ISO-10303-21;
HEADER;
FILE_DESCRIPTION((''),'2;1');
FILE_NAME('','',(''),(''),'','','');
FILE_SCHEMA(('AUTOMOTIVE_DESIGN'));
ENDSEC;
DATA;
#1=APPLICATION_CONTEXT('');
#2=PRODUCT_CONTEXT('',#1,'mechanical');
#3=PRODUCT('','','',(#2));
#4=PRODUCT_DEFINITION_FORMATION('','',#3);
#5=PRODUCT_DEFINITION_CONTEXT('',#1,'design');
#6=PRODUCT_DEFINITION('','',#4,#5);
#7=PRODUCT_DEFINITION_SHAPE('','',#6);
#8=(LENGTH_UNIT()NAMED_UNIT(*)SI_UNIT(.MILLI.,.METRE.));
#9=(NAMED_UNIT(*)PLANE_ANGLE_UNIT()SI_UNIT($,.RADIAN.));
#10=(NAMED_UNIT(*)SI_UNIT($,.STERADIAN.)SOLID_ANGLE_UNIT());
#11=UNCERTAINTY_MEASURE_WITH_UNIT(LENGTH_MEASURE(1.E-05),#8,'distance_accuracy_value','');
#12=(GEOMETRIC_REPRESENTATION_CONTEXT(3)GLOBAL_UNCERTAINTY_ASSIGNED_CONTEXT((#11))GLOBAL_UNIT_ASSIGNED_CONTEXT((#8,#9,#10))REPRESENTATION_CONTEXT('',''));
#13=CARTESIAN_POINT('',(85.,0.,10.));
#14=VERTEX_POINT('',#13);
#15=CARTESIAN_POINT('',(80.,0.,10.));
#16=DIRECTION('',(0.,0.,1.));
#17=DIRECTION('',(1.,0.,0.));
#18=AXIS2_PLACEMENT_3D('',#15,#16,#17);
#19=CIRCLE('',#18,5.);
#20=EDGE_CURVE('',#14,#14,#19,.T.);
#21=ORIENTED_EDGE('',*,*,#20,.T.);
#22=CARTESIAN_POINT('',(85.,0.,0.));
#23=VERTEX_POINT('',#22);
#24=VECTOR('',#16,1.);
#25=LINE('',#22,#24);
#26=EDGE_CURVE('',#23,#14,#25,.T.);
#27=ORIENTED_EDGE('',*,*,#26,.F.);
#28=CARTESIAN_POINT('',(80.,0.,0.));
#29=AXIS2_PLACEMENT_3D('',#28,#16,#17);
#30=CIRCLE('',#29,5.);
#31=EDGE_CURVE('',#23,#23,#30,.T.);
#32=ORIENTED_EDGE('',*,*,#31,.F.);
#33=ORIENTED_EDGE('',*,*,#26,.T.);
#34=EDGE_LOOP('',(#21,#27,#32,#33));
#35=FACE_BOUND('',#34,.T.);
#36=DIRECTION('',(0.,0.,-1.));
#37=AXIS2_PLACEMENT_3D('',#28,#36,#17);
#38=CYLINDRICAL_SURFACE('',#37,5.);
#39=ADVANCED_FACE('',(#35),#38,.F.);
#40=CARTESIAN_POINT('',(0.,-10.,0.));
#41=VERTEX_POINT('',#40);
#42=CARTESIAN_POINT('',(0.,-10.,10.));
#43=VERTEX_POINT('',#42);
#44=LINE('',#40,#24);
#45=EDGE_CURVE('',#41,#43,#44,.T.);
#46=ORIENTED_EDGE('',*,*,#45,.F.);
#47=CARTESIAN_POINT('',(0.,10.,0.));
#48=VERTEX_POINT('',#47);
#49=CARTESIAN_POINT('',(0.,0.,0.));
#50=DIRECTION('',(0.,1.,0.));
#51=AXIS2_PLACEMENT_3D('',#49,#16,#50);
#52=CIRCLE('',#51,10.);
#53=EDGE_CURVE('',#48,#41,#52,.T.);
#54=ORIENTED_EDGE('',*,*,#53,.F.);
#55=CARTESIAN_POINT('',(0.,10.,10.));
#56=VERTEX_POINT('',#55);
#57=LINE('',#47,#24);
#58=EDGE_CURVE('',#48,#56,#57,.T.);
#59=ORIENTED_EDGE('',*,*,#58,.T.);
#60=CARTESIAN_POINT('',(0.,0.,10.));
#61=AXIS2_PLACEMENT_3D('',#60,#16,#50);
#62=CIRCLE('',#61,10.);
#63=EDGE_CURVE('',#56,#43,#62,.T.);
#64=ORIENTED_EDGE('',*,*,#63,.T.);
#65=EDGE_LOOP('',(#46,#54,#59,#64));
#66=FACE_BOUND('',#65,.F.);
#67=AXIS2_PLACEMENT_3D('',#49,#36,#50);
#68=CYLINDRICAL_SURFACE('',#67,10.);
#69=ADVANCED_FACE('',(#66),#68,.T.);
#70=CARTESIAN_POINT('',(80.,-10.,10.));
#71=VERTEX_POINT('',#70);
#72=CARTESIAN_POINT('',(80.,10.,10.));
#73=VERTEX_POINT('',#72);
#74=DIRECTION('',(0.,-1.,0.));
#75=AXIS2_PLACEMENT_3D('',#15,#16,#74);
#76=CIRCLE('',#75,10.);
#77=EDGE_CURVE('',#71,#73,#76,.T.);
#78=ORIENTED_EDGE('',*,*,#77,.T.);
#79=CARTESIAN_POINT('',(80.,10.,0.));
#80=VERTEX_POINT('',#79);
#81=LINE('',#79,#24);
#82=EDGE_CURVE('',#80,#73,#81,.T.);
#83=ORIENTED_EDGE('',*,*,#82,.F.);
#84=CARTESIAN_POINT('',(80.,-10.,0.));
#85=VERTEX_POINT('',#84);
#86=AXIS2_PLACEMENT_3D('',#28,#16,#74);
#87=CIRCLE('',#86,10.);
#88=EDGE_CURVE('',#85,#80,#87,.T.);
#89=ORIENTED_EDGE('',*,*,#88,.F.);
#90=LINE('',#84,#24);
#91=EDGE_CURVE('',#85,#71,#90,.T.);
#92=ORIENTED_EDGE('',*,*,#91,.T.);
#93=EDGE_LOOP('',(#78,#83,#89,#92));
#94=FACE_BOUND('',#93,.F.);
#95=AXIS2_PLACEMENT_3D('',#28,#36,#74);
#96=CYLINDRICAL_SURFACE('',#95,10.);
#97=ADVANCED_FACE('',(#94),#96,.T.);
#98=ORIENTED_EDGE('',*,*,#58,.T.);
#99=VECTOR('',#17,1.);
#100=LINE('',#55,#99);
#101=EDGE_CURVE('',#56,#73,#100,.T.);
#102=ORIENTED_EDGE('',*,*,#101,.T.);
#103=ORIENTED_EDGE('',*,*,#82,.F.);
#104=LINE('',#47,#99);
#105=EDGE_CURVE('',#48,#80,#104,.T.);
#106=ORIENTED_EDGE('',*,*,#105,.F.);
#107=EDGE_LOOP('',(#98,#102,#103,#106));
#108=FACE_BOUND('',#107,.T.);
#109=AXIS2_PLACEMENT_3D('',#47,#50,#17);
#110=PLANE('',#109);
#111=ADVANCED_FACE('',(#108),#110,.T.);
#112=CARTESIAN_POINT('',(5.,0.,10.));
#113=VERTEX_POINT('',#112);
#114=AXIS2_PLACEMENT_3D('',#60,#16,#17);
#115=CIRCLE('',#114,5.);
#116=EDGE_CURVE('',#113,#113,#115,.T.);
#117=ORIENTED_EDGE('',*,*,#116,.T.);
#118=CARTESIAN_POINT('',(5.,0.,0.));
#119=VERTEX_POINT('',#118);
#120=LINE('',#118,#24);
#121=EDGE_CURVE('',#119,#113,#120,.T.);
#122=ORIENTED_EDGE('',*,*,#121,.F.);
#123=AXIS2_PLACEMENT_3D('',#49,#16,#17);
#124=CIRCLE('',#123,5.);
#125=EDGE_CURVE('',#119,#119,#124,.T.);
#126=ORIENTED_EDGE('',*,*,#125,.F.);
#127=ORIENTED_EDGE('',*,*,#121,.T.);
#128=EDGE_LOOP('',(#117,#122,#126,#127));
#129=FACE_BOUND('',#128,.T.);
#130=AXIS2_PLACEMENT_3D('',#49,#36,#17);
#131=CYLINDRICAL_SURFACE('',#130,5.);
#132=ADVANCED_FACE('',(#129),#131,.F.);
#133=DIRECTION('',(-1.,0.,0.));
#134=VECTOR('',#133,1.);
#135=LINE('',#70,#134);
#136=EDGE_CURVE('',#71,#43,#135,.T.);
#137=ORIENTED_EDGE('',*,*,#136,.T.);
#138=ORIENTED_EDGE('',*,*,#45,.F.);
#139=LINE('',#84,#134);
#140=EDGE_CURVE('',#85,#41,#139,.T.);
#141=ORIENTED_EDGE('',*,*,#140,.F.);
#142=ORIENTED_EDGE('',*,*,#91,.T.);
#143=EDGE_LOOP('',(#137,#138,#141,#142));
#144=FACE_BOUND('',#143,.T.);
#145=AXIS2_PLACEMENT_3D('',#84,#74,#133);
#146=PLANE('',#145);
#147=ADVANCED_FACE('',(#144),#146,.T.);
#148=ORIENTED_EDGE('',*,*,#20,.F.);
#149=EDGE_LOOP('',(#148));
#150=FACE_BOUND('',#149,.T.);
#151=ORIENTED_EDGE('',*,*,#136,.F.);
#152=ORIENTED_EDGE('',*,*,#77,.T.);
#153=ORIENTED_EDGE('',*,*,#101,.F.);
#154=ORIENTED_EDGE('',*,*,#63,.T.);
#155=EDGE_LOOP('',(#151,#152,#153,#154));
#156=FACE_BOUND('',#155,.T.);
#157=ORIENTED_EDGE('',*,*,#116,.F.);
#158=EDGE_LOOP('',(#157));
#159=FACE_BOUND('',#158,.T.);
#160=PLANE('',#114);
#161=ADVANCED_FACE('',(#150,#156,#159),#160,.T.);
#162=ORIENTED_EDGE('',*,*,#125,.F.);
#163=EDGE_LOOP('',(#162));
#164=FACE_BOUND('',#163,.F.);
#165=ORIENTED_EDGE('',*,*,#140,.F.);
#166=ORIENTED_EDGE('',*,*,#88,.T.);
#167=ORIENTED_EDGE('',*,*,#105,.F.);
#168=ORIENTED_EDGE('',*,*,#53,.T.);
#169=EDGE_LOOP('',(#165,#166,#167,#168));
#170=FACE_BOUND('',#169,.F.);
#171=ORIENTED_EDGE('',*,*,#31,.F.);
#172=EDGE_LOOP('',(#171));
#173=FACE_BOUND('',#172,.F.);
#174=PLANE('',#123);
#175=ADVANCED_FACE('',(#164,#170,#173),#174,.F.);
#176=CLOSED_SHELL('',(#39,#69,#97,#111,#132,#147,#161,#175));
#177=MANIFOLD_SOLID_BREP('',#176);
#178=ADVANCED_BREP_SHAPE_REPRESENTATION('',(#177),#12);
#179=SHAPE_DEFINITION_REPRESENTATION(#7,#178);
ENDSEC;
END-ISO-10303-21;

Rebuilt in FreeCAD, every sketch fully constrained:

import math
import FreeCAD as App
import Part
import Sketcher

doc = App.newDocument("Part")
body = doc.addObject("PartDesign::Body", "Body")

sketch1 = body.newObject("Sketcher::SketchObject", "Sketch")
sketch1.AttachmentSupport = (doc.getObject("XY_Plane"), [""])
sketch1.MapMode = "FlatFace"
sketch1.addGeometry(Part.LineSegment(App.Vector(80, 10, 0), App.Vector(0, 10, 0)), False)
sketch1.addGeometry(Part.ArcOfCircle(Part.Circle(App.Vector(0, 0, 0), App.Vector(0, 0, 1), 10), math.radians(90), math.radians(270)), False)
sketch1.addGeometry(Part.LineSegment(App.Vector(0, -10, 0), App.Vector(80, -10, 0)), False)
sketch1.addGeometry(Part.ArcOfCircle(Part.Circle(App.Vector(80, 0, 0), App.Vector(0, 0, 1), 10), math.radians(-90), math.radians(90)), False)
sketch1.addGeometry(Part.Circle(App.Vector(0, 0, 0), App.Vector(0, 0, 1), 5), False)
sketch1.addGeometry(Part.Circle(App.Vector(80, 0, 0), App.Vector(0, 0, 1), 5), False)
sketch1.addConstraint(Sketcher.Constraint("Tangent", 0, 2, 1, 1))
sketch1.addConstraint(Sketcher.Constraint("Tangent", 1, 2, 2, 1))
sketch1.addConstraint(Sketcher.Constraint("Tangent", 2, 2, 3, 1))
sketch1.addConstraint(Sketcher.Constraint("Tangent", 3, 2, 0, 1))
sketch1.addConstraint(Sketcher.Constraint("Horizontal", 0))
sketch1.addConstraint(Sketcher.Constraint("Horizontal", 2))
sketch1.addConstraint(Sketcher.Constraint("Coincident", 1, 3, -1, 1))
sketch1.addConstraint(Sketcher.Constraint("Coincident", 4, 3, -1, 1))
sketch1.addConstraint(Sketcher.Constraint("Coincident", 5, 3, 3, 3))
sketch1.addConstraint(Sketcher.Constraint("Equal", 4, 5))
sketch1.addConstraint(Sketcher.Constraint("Diameter", 4, 10.0))
sketch1.addConstraint(Sketcher.Constraint("Radius", 1, 10.0))
sketch1.addConstraint(Sketcher.Constraint("DistanceX", 0, 2, 0, 1, 80.0))
pad1 = body.newObject("PartDesign::Pad", "Pad")
pad1.Profile = sketch1
pad1.Length = 10

doc.recompute()
